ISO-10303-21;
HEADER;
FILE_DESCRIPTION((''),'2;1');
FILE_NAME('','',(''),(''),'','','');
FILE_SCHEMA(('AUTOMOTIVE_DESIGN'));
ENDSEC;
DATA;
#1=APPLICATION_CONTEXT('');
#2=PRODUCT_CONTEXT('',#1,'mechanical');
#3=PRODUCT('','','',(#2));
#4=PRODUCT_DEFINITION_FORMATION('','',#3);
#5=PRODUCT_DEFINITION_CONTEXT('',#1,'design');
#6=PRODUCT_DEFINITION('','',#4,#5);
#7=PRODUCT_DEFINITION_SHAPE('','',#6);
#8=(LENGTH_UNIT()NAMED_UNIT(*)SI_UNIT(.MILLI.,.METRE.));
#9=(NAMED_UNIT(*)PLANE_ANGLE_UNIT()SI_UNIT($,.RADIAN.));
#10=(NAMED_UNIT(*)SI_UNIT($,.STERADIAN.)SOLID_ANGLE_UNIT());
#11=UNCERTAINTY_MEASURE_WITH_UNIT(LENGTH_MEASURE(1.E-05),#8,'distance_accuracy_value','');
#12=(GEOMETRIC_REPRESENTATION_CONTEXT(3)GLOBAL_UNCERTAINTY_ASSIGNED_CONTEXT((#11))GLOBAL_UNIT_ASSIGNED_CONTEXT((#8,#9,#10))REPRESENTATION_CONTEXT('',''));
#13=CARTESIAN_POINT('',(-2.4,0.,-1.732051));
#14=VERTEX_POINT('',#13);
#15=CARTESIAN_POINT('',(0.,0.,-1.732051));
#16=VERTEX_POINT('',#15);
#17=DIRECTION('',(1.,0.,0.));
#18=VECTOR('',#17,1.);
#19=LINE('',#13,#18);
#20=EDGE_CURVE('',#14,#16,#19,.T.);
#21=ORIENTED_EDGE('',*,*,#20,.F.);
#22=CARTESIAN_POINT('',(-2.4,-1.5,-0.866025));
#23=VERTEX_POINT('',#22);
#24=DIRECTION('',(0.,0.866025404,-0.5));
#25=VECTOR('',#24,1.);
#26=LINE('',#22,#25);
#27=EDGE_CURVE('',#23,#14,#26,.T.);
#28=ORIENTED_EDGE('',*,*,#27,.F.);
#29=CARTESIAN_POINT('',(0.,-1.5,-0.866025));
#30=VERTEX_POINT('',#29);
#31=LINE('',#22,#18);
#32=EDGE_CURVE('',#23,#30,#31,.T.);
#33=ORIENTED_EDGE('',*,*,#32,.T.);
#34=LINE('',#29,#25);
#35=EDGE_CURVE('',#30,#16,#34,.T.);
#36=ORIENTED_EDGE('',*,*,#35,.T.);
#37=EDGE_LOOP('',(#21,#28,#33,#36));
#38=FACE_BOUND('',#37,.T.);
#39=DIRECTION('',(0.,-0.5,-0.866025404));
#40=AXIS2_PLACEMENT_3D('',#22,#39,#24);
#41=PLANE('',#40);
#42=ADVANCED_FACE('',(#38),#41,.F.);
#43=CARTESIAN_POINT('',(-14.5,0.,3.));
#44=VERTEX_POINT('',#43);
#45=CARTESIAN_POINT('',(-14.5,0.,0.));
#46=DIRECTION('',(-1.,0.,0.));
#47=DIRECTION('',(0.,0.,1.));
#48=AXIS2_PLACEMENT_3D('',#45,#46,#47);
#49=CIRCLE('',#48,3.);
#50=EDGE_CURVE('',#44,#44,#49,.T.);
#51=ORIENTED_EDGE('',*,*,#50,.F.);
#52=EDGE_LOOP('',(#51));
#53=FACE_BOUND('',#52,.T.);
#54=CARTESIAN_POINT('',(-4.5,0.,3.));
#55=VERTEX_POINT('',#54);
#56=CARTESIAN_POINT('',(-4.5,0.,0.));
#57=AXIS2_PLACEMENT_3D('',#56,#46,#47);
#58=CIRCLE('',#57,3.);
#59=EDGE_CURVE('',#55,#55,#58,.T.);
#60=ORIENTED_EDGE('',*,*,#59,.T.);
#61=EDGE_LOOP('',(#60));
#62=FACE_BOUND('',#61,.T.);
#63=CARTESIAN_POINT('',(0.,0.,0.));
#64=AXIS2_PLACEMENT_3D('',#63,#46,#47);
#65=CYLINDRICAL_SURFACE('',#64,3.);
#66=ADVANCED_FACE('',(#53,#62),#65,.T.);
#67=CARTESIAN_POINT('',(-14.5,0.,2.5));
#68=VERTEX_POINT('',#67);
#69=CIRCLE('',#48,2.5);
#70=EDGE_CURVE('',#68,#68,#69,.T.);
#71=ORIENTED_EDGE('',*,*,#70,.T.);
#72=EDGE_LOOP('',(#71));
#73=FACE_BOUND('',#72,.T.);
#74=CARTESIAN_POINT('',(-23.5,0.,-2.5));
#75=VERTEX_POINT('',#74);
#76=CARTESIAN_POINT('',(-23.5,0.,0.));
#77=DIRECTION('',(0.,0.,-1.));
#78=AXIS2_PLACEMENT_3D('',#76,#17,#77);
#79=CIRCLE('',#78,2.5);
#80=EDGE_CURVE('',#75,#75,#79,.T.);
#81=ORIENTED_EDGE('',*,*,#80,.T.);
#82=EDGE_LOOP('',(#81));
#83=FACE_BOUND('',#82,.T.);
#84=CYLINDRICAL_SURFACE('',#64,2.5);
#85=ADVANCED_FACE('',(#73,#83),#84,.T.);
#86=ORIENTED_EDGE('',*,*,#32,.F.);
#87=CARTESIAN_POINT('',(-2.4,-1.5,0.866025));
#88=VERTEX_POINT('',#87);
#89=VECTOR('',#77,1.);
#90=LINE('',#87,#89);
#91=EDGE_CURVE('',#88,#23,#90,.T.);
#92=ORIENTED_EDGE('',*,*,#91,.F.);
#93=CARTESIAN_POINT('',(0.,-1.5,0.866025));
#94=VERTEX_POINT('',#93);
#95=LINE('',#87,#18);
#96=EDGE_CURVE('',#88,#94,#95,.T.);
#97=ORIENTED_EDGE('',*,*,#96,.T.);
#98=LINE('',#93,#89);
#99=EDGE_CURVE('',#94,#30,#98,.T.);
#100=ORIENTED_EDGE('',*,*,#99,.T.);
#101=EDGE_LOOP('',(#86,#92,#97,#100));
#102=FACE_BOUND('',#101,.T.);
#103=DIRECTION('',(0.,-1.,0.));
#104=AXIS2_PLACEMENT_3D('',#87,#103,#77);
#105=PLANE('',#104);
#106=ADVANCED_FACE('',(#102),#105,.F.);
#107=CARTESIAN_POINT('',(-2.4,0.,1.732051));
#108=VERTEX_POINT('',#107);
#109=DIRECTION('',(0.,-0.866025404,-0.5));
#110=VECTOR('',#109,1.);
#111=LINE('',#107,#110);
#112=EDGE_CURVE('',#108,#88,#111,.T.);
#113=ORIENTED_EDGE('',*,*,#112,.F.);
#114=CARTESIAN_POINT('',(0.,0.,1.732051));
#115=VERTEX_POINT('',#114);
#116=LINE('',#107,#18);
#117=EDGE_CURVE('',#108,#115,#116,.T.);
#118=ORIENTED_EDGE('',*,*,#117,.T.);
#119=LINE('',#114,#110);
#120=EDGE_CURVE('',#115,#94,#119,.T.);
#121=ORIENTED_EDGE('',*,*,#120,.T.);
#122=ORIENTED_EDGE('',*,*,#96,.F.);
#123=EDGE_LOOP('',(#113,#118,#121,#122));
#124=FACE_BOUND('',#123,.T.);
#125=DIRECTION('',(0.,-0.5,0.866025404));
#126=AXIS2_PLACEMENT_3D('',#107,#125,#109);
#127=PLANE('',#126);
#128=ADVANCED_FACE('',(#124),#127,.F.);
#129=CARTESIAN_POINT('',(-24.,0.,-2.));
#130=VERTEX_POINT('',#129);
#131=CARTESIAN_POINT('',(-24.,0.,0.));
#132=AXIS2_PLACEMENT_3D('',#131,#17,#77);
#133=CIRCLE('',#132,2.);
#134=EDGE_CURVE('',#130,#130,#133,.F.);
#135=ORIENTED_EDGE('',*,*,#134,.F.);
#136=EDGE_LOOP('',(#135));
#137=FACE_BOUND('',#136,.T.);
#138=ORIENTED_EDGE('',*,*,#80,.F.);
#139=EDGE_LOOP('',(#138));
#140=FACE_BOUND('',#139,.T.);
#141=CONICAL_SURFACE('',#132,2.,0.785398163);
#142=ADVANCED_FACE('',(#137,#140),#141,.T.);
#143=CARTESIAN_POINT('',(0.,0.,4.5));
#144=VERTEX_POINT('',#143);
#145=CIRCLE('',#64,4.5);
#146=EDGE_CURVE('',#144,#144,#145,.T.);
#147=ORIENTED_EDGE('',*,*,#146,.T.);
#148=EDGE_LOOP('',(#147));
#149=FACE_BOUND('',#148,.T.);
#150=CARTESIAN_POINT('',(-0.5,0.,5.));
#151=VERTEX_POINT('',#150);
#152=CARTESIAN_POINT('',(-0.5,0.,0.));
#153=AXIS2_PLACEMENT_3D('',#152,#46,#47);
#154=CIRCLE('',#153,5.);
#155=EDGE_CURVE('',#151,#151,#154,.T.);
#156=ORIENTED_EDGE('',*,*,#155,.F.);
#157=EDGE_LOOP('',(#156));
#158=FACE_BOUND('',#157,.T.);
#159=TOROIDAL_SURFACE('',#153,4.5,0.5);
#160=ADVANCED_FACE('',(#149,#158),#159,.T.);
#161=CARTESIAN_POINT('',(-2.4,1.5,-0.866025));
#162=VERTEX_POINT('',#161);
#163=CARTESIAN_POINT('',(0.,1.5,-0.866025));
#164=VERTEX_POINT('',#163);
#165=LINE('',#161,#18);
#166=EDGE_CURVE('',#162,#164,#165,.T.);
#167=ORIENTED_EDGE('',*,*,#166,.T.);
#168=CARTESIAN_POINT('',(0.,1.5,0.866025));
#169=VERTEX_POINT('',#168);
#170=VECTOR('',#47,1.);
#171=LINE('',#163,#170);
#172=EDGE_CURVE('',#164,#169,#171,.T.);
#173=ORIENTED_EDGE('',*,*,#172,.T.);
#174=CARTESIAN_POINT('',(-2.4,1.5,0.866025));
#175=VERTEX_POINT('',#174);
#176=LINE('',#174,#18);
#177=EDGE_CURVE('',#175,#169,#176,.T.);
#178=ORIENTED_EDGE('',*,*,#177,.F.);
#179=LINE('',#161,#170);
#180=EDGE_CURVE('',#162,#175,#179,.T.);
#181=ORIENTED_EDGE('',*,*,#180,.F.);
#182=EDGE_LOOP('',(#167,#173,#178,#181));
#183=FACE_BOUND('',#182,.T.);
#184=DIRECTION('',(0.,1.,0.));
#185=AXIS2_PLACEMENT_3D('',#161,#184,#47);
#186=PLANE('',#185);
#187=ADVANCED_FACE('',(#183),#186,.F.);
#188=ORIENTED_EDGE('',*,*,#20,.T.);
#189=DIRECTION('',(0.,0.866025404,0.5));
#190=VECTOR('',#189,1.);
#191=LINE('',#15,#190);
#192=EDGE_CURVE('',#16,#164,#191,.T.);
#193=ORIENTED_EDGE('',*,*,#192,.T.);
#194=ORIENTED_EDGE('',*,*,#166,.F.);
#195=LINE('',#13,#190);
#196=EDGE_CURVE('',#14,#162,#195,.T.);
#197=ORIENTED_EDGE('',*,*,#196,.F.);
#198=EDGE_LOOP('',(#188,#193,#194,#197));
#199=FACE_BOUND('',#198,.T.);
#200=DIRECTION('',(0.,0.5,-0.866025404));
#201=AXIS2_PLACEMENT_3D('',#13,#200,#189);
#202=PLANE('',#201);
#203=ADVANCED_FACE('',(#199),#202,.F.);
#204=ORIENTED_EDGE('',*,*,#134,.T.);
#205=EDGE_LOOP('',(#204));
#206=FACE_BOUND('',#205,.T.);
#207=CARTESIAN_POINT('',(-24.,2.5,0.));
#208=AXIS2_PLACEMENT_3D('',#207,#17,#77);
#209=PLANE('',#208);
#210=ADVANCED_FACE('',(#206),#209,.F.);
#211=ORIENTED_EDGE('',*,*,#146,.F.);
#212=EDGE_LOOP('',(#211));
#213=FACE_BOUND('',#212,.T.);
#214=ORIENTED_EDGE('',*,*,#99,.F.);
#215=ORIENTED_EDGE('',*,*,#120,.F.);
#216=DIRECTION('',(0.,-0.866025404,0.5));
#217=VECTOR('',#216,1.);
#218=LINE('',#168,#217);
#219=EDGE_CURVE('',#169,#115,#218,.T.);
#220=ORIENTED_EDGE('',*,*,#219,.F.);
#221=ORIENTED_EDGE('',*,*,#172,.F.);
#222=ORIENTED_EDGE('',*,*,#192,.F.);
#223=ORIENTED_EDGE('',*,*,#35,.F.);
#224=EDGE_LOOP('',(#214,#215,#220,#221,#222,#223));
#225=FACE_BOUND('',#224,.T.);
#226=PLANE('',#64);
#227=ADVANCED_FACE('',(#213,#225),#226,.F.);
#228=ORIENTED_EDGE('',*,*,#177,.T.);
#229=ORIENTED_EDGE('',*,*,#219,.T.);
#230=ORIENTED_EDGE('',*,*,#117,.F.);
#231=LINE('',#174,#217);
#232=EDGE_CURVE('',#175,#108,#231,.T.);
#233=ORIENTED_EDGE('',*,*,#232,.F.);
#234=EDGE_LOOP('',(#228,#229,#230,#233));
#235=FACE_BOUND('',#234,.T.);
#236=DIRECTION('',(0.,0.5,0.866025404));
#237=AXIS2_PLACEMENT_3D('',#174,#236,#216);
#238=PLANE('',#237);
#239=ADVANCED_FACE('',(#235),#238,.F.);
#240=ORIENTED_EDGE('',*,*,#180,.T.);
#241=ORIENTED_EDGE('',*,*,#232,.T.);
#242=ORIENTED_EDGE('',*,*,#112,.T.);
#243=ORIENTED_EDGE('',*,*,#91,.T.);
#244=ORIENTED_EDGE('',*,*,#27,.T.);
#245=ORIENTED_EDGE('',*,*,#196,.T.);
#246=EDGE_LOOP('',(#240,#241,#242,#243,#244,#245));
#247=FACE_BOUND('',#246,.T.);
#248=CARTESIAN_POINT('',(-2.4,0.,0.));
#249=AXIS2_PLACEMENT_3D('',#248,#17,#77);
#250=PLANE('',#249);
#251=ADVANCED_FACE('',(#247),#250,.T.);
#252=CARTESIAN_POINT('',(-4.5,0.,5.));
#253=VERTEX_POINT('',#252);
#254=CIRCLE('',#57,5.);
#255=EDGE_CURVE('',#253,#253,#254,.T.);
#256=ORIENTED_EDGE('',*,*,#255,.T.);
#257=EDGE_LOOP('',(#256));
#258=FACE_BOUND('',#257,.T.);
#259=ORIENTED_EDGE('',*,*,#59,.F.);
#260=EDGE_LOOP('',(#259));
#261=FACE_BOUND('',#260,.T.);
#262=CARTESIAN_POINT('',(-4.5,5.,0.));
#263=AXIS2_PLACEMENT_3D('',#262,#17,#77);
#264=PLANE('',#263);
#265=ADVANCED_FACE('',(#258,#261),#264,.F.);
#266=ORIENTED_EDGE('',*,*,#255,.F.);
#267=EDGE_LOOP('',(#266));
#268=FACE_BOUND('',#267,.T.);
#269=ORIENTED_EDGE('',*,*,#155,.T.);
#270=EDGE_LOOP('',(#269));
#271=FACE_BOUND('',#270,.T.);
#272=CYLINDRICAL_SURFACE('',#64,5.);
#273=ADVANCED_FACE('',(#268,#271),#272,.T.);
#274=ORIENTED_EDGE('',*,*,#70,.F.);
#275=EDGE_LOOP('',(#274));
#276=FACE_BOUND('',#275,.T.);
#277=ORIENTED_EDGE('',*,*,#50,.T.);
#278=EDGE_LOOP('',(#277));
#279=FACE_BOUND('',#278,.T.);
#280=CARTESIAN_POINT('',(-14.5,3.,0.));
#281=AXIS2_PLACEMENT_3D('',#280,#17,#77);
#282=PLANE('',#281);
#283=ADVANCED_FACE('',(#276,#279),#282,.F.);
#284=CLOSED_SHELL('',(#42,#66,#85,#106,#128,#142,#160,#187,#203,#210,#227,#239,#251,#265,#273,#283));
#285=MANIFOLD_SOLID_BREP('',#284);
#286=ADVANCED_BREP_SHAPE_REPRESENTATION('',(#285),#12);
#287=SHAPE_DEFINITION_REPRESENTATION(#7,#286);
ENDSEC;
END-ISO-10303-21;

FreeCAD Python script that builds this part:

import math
import FreeCAD as App
import Part
import Sketcher
Q = App.Units.Quantity


def edges_at(feature, points):
    """Names of the edges that pass closest to the given points."""
    edges = feature.Shape.Edges
    near = lambda p: min(range(len(edges)), key=lambda i: edges[i].distToShape(Part.Vertex(*p))[0])
    return sorted({f"Edge{near(p) + 1}" for p in points})


def add_polygon(sketch, points):
    """Adds a closed chain of lines whose ends are joined by coincident constraints."""
    first, n = sketch.GeometryCount, len(points)
    for a, b in zip(points, points[1:] + points[:1]):
        sketch.addGeometry(Part.LineSegment(App.Vector(*a, 0), App.Vector(*b, 0)), False)
    for i in range(n):
        sketch.addConstraint(Sketcher.Constraint("Coincident", first + i, 2, first + (i + 1) % n, 1))

doc = App.newDocument("Part")
body = doc.addObject("PartDesign::Body", "Body")

# Sketch on XY plane
sketch1 = doc.addObject("Sketcher::SketchObject", "Sketch")
body.addObject(sketch1)
sketch1.AttachmentSupport = (doc.XY_Plane, [""])
sketch1.MapMode = "FlatFace"
sketch1.addGeometry([
    Part.LineSegment(App.Vector(0, 0, 0), App.Vector(0, 4.5, 0)),  # 0
    Part.ArcOfCircle(Part.Circle(App.Vector(-0.5, 4.5, 0), App.Vector(0, 0, 1), 0.5), math.radians(0), math.radians(90)),  # 1
    Part.LineSegment(App.Vector(-0.5, 5, 0), App.Vector(-4.5, 5, 0)),  # 2
    Part.LineSegment(App.Vector(-4.5, 5, 0), App.Vector(-4.5, 3, 0)),  # 3
    Part.LineSegment(App.Vector(-4.5, 3, 0), App.Vector(-14.5, 3, 0)),  # 4
    Part.LineSegment(App.Vector(-14.5, 3, 0), App.Vector(-14.5, 2.5, 0)),  # 5
    Part.LineSegment(App.Vector(-14.5, 2.5, 0), App.Vector(-24, 2.5, 0)),  # 6
    Part.LineSegment(App.Vector(-24, 2.5, 0), App.Vector(-24, 0, 0)),  # 7
    Part.LineSegment(App.Vector(-24, 0, 0), App.Vector(0, 0, 0)),  # 8
], False)
sketch1.addConstraint([
    Sketcher.Constraint("Tangent", 0, 2, 1, 1),
    Sketcher.Constraint("Tangent", 1, 2, 2, 1),
    Sketcher.Constraint("Coincident", 2, 2, 3, 1),
    Sketcher.Constraint("Coincident", 3, 2, 4, 1),
    Sketcher.Constraint("Coincident", 4, 2, 5, 1),
    Sketcher.Constraint("Coincident", 5, 2, 6, 1),
    Sketcher.Constraint("Coincident", 6, 2, 7, 1),
    Sketcher.Constraint("Coincident", 7, 2, 8, 1),
    Sketcher.Constraint("Coincident", 8, 2, 0, 1),
    Sketcher.Constraint("Vertical", 0),
    Sketcher.Constraint("Horizontal", 2),
    Sketcher.Constraint("Vertical", 3),
    Sketcher.Constraint("Horizontal", 4),
    Sketcher.Constraint("Vertical", 5),
    Sketcher.Constraint("Horizontal", 6),
    Sketcher.Constraint("Vertical", 7),
    Sketcher.Constraint("Horizontal", 8),
    Sketcher.Constraint("Coincident", 8, 2, -1, 1),
    Sketcher.Constraint("Radius", 1, Q("0.5 mm")),
    Sketcher.Constraint("DistanceX", 2, 2, 2, 1, Q("4 mm")),
    Sketcher.Constraint("DistanceX", 4, 2, 4, 1, Q("10 mm")),
    Sketcher.Constraint("DistanceX", 8, 1, 8, 2, Q("24 mm")),
    Sketcher.Constraint("DistanceY", 3, 2, 3, 1, Q("2 mm")),
    Sketcher.Constraint("DistanceY", 0, 1, 0, 2, Q("4.5 mm")),
    Sketcher.Constraint("DistanceY", 5, 2, 5, 1, Q("0.5 mm")),
])
revolution = doc.addObject("PartDesign::Revolution", "Revolution")
body.addObject(revolution)
revolution.Profile = sketch1
revolution.ReferenceAxis = (sketch1, ["H_Axis"])
revolution.Angle = 360
doc.recompute()

chamfer = doc.addObject("PartDesign::Chamfer", "Chamfer")
body.addObject(chamfer)
chamfer.Base = (revolution, edges_at(revolution, [(-24, 0, -2.5)]))
chamfer.Size = 0.5

# Sketch on YZ plane
sketch2 = doc.addObject("Sketcher::SketchObject", "Sketch001")
body.addObject(sketch2)
sketch2.AttachmentSupport = (doc.YZ_Plane, [""])
sketch2.MapMode = "FlatFace"
add_polygon(sketch2, [(0, -1.7), (1.5, -0.9), (1.5, 0.9), (0, 1.7), (-1.5, 0.9), (-1.5, -0.9)])  # lines 0-5
sketch2.addConstraint([
    Sketcher.Constraint("Vertical", 1),
    Sketcher.Constraint("Vertical", 4),
    Sketcher.Constraint("Symmetric", 0, 2, 3, 2, -1, 1),
    Sketcher.Constraint("Symmetric", 2, 2, 5, 2, -1, 1),
    Sketcher.Constraint("PointOnObject", 2, 2, -2),
    Sketcher.Constraint("Parallel", 2, 5),
    Sketcher.Constraint("Horizontal", 1, 2, 3, 2),
    Sketcher.Constraint("Angle", 0, Q("30 deg")),
    Sketcher.Constraint("DistanceX", 3, 2, 1, 2, Q("3 mm")),
    Sketcher.Constraint("DistanceY", 1, 1, 1, 2, Q("1.732051 mm")),
])
pocket1 = doc.addObject("PartDesign::Pocket", "Pocket")
body.addObject(pocket1)
pocket1.Profile = sketch2
pocket1.Length = 2.4

doc.recompute()
